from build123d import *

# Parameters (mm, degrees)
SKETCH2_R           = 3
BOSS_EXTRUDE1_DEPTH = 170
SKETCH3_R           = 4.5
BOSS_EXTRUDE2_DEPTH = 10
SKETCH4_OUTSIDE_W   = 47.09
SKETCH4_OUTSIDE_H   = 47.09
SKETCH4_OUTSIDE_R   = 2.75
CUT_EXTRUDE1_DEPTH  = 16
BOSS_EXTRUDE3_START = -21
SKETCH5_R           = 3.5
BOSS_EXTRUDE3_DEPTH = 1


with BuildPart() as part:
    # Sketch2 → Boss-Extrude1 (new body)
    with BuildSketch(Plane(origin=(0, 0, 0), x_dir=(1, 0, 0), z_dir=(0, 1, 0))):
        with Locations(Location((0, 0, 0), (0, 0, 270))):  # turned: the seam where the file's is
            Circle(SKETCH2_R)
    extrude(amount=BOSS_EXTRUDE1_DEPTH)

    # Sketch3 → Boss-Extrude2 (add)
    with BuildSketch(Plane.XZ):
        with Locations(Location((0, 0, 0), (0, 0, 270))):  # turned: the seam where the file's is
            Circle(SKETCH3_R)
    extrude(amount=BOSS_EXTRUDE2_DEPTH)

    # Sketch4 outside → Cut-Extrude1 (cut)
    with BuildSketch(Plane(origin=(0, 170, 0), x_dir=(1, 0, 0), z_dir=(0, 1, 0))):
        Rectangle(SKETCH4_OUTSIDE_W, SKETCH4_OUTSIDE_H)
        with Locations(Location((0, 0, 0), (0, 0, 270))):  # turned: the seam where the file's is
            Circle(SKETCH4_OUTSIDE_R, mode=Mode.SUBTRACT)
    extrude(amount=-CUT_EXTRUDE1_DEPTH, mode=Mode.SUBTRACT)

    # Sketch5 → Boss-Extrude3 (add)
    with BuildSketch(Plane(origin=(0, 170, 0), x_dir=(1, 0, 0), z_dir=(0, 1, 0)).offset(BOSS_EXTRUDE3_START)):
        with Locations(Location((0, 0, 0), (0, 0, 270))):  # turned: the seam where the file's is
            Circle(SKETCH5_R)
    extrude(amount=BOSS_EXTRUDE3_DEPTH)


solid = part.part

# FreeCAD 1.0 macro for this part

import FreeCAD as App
import Part
import Sketcher
from FreeCAD import Vector
Q = App.Units.Quantity


def add_polygon(sketch, points):
    """Adds a closed chain of lines whose ends are joined by coincident constraints."""
    first, n = sketch.GeometryCount, len(points)
    for a, b in zip(points, points[1:] + points[:1]):
        sketch.addGeometry(Part.LineSegment(App.Vector(*a, 0), App.Vector(*b, 0)), False)
    for i in range(n):
        sketch.addConstraint(Sketcher.Constraint("Coincident", first + i, 2, first + (i + 1) % n, 1))

doc = App.newDocument("Part")
body = doc.addObject("PartDesign::Body", "Body")

# Sketch on XZ plane
sketch1 = doc.addObject("Sketcher::SketchObject", "Sketch")
body.addObject(sketch1)
sketch1.AttachmentSupport = (doc.XZ_Plane, [""])
sketch1.MapMode = "FlatFace"
sketch1.addGeometry(Part.Circle(Vector(0, 0, 0), Vector(0, 0, 1), 3), False)
sketch1.addConstraint([
    Sketcher.Constraint("Coincident", 0, 3, -1, 1),
    Sketcher.Constraint("Diameter", 0, Q("6 mm")),
])
pad1 = doc.addObject("PartDesign::Pad", "Pad")
body.addObject(pad1)
pad1.Profile = sketch1
pad1.Length = 170
pad1.Reversed = True

# Sketch on XZ plane
sketch2 = doc.addObject("Sketcher::SketchObject", "Sketch001")
body.addObject(sketch2)
sketch2.AttachmentSupport = (doc.XZ_Plane, [""])
sketch2.MapMode = "FlatFace"
sketch2.addGeometry(Part.Circle(Vector(0, 0, 0), Vector(0, 0, 1), 4.5), False)
sketch2.addConstraint([
    Sketcher.Constraint("Coincident", 0, 3, -1, 1),
    Sketcher.Constraint("Diameter", 0, Q("9 mm")),
])
pad2 = doc.addObject("PartDesign::Pad", "Pad001")
body.addObject(pad2)
pad2.Profile = sketch2
pad2.Length = 10

# Sketch on XZ plane
sketch3 = doc.addObject("Sketcher::SketchObject", "Sketch002")
body.addObject(sketch3)
sketch3.AttachmentSupport = (doc.XZ_Plane, [""])
sketch3.MapMode = "FlatFace"
sketch3.AttachmentOffset = App.Placement(Vector(0, 0, -170), App.Rotation())
add_polygon(sketch3, [(-23.545, -23.545), (-23.545, 23.545), (23.545, 23.545), (23.545, -23.545)])  # lines 0-3
sketch3.addGeometry(Part.Circle(Vector(0, 0, 0), Vector(0, 0, 1), 2.75), False)  # 4
sketch3.addConstraint([
    Sketcher.Constraint("Vertical", 0),
    Sketcher.Constraint("Horizontal", 1),
    Sketcher.Constraint("Vertical", 2),
    Sketcher.Constraint("Horizontal", 3),
    Sketcher.Constraint("Coincident", 4, 3, -1, 1),
    Sketcher.Constraint("Symmetric", 0, 2, 2, 2, -1, 1),
    Sketcher.Constraint("Equal", 3, 0),
    Sketcher.Constraint("Diameter", 4, Q("5.5 mm")),
    Sketcher.Constraint("DistanceX", 1, 1, 1, 2, Q("47.09 mm")),
])
pocket1 = doc.addObject("PartDesign::Pocket", "Pocket")
body.addObject(pocket1)
pocket1.Profile = sketch3
pocket1.Length = 16
pocket1.Reversed = True

# Sketch on XZ plane
sketch4 = doc.addObject("Sketcher::SketchObject", "Sketch003")
body.addObject(sketch4)
sketch4.AttachmentSupport = (doc.XZ_Plane, [""])
sketch4.MapMode = "FlatFace"
sketch4.AttachmentOffset = App.Placement(Vector(0, 0, -149), App.Rotation())
sketch4.addGeometry(Part.Circle(Vector(0, 0, 0), Vector(0, 0, 1), 3.5), False)
sketch4.addConstraint([
    Sketcher.Constraint("Coincident", 0, 3, -1, 1),
    Sketcher.Constraint("Diameter", 0, Q("7 mm")),
])
pad3 = doc.addObject("PartDesign::Pad", "Pad002")
body.addObject(pad3)
pad3.Profile = sketch4
pad3.Length = 1
pad3.Reversed = True

doc.recompute()
